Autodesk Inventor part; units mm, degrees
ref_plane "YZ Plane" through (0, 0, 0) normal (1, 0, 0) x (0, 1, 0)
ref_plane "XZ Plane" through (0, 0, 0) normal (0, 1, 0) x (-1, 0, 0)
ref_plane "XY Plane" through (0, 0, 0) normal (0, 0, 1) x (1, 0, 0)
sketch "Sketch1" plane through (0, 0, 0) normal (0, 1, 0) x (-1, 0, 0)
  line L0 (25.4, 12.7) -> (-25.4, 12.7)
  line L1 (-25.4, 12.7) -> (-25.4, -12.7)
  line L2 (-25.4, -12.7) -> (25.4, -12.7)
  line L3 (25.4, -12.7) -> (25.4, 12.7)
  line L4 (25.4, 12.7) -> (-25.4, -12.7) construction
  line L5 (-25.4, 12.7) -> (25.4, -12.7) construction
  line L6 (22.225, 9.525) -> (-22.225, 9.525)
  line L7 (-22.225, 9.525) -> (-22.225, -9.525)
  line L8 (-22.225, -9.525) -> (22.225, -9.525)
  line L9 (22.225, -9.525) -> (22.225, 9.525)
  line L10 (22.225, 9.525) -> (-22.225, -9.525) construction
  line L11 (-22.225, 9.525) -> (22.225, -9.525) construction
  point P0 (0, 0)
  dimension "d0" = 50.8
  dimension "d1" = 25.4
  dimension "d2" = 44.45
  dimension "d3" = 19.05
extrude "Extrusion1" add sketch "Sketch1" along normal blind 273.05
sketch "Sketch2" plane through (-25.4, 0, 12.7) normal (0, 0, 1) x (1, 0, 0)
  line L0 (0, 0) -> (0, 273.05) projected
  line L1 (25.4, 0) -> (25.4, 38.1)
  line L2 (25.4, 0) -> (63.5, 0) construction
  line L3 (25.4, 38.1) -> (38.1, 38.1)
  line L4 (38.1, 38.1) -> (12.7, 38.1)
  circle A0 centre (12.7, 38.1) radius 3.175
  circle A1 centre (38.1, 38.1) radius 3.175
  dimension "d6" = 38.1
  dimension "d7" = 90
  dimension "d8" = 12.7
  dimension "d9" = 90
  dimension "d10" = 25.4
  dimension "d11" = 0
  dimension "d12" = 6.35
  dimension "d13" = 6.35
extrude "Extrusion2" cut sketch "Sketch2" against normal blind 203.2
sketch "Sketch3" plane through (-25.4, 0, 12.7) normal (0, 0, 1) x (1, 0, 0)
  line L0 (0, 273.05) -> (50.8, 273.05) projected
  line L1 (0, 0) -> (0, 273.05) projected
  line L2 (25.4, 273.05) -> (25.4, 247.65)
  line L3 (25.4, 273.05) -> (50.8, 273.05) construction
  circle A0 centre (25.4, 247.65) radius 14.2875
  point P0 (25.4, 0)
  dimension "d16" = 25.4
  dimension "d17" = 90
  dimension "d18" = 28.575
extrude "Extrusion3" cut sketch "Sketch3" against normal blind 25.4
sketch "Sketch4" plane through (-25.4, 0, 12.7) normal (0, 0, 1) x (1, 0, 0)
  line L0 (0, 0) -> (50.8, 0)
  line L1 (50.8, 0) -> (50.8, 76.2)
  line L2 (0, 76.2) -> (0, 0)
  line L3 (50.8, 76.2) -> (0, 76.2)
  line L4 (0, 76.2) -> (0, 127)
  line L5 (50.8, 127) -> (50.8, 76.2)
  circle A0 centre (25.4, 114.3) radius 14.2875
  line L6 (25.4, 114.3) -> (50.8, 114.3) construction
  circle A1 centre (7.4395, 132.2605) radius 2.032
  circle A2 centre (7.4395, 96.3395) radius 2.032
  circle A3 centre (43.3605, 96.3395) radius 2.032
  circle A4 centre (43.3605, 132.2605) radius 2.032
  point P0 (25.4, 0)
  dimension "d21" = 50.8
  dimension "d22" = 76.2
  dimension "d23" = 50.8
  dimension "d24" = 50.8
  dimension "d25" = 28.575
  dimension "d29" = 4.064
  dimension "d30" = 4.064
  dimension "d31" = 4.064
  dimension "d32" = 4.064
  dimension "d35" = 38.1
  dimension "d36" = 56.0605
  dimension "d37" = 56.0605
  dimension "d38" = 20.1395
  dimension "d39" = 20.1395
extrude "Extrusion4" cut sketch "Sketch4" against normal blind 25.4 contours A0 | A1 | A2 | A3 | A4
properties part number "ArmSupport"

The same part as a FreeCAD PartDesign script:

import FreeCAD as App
import Part
import Sketcher

V = App.Vector
Q = App.Units.Quantity


def add_polygon(sketch, points):
    """Adds a closed chain of lines whose ends are joined by coincident constraints."""
    first, n = sketch.GeometryCount, len(points)
    for a, b in zip(points, points[1:] + points[:1]):
        sketch.addGeometry(Part.LineSegment(App.Vector(*a, 0), App.Vector(*b, 0)), False)
    for i in range(n):
        sketch.addConstraint(Sketcher.Constraint("Coincident", first + i, 2, first + (i + 1) % n, 1))

doc = App.newDocument("Part")
body = doc.addObject("PartDesign::Body", "Body")

sketch1 = body.newObject("Sketcher::SketchObject", "Sketch")
sketch1.AttachmentSupport = (doc.getObject("XZ_Plane"), [""])
sketch1.MapMode = "FlatFace"
add_polygon(sketch1, [(-25, -13), (-25, 13), (25, 13), (25, -13)])
add_polygon(sketch1, [(22, 10), (-22, 10), (-22, -10), (22, -10)])
sketch1.addConstraint(Sketcher.Constraint("Vertical", 0))
sketch1.addConstraint(Sketcher.Constraint("Horizontal", 1))
sketch1.addConstraint(Sketcher.Constraint("Vertical", 2))
sketch1.addConstraint(Sketcher.Constraint("Horizontal", 3))
sketch1.addConstraint(Sketcher.Constraint("Horizontal", 4))
sketch1.addConstraint(Sketcher.Constraint("Vertical", 5))
sketch1.addConstraint(Sketcher.Constraint("Horizontal", 6))
sketch1.addConstraint(Sketcher.Constraint("Vertical", 7))
sketch1.addConstraint(Sketcher.Constraint("Symmetric", 0, 2, 2, 2, -1, 1))
sketch1.addConstraint(Sketcher.Constraint("Symmetric", 4, 2, 6, 2, -1, 1))
sketch1.addConstraint(Sketcher.Constraint("DistanceX", 1, 1, 1, 2, Q("2 in")))
sketch1.addConstraint(Sketcher.Constraint("DistanceY", 0, 1, 0, 2, Q("1 in")))
sketch1.addConstraint(Sketcher.Constraint("DistanceX", 4, 2, 4, 1, Q("1.75 in")))
sketch1.addConstraint(Sketcher.Constraint("DistanceY", 5, 2, 5, 1, Q("0.75 in")))
pad1 = body.newObject("PartDesign::Pad", "Pad")
pad1.Profile = sketch1
pad1.Length = Q("10.75 in")
pad1.Reversed = True

sketch2 = body.newObject("Sketcher::SketchObject", "Sketch001")
sketch2.AttachmentSupport = (doc.getObject("XY_Plane"), [""])
sketch2.MapMode = "FlatFace"
sketch2.AttachmentOffset = App.Placement(V(0, 0, 0.5 * 25.4), App.Rotation())
sketch2.addGeometry(Part.Circle(V(12.7, 38.1, 0), V(0, 0, 1), 3.2), False)
sketch2.addGeometry(Part.Circle(V(-12.7, 38.1, 0), V(0, 0, 1), 3.2), False)
sketch2.addConstraint(Sketcher.Constraint("Equal", 0, 1))
sketch2.addConstraint(Sketcher.Constraint("Symmetric", 0, 3, 1, 3, -2))
sketch2.addConstraint(Sketcher.Constraint("Diameter", 0, Q("0.25 in")))
sketch2.addConstraint(Sketcher.Constraint("DistanceX", 1, 3, 0, 3, Q("1 in")))
sketch2.addConstraint(Sketcher.Constraint("DistanceY", -1, 1, 0, 3, Q("1.5 in")))
pocket1 = body.newObject("PartDesign::Pocket", "Pocket")
pocket1.Profile = sketch2
pocket1.Length = Q("8 in")

sketch3 = body.newObject("Sketcher::SketchObject", "Sketch002")
sketch3.AttachmentSupport = (doc.getObject("XY_Plane"), [""])
sketch3.MapMode = "FlatFace"
sketch3.AttachmentOffset = App.Placement(V(0, 0, 0.5 * 25.4), App.Rotation())
sketch3.addGeometry(Part.Circle(V(0, 248, 0), V(0, 0, 1), 14), False)
sketch3.addConstraint(Sketcher.Constraint("PointOnObject", 0, 3, -2))
sketch3.addConstraint(Sketcher.Constraint("Diameter", 0, Q("1.125 in")))
sketch3.addConstraint(Sketcher.Constraint("DistanceY", -1, 1, 0, 3, Q("9.75 in")))
pocket2 = body.newObject("PartDesign::Pocket", "Pocket001")
pocket2.Profile = sketch3
pocket2.Length = Q("1 in")

sketch4 = body.newObject("Sketcher::SketchObject", "Sketch003")
sketch4.AttachmentSupport = (doc.getObject("XY_Plane"), [""])
sketch4.MapMode = "FlatFace"
sketch4.AttachmentOffset = App.Placement(V(0, 0, 0.5 * 25.4), App.Rotation())
sketch4.addGeometry(Part.Circle(V(0, 114.3, 0), V(0, 0, 1), 14.3), False)
sketch4.addGeometry(Part.Circle(V(-18, 132.3, 0), V(0, 0, 1), 2), False)
sketch4.addGeometry(Part.Circle(V(-18, 96.3, 0), V(0, 0, 1), 2), False)
sketch4.addGeometry(Part.Circle(V(18, 96.3, 0), V(0, 0, 1), 2), False)
sketch4.addGeometry(Part.Circle(V(18, 132.3, 0), V(0, 0, 1), 2), False)
sketch4.addConstraint(Sketcher.Constraint("Equal", 1, 2))
sketch4.addConstraint(Sketcher.Constraint("Equal", 2, 3))
sketch4.addConstraint(Sketcher.Constraint("Equal", 3, 4))
sketch4.addConstraint(Sketcher.Constraint("Symmetric", 2, 3, 3, 3, -2))
sketch4.addConstraint(Sketcher.Constraint("Symmetric", 1, 3, 4, 3, -2))
sketch4.addConstraint(Sketcher.Constraint("PointOnObject", 0, 3, -2))
sketch4.addConstraint(Sketcher.Constraint("Vertical", 1, 3, 2, 3))
sketch4.addConstraint(Sketcher.Constraint("Diameter", 1, Q("0.16 in")))
sketch4.addConstraint(Sketcher.Constraint("Diameter", 0, Q("1.125 in")))
sketch4.addConstraint(Sketcher.Constraint("DistanceY", -1, 1, 0, 3, Q("4.5 in")))
sketch4.addConstraint(Sketcher.Constraint("DistanceX", 1, 3, -1, 1, Q("0.7071 in")))
sketch4.addConstraint(Sketcher.Constraint("DistanceY", -1, 1, 1, 3, Q("5.2071 in")))
sketch4.addConstraint(Sketcher.Constraint("DistanceY", -1, 1, 2, 3, Q("3.7929 in")))
pocket3 = body.newObject("PartDesign::Pocket", "Pocket002")
pocket3.Profile = sketch4
pocket3.Length = Q("1 in")

doc.recompute()
